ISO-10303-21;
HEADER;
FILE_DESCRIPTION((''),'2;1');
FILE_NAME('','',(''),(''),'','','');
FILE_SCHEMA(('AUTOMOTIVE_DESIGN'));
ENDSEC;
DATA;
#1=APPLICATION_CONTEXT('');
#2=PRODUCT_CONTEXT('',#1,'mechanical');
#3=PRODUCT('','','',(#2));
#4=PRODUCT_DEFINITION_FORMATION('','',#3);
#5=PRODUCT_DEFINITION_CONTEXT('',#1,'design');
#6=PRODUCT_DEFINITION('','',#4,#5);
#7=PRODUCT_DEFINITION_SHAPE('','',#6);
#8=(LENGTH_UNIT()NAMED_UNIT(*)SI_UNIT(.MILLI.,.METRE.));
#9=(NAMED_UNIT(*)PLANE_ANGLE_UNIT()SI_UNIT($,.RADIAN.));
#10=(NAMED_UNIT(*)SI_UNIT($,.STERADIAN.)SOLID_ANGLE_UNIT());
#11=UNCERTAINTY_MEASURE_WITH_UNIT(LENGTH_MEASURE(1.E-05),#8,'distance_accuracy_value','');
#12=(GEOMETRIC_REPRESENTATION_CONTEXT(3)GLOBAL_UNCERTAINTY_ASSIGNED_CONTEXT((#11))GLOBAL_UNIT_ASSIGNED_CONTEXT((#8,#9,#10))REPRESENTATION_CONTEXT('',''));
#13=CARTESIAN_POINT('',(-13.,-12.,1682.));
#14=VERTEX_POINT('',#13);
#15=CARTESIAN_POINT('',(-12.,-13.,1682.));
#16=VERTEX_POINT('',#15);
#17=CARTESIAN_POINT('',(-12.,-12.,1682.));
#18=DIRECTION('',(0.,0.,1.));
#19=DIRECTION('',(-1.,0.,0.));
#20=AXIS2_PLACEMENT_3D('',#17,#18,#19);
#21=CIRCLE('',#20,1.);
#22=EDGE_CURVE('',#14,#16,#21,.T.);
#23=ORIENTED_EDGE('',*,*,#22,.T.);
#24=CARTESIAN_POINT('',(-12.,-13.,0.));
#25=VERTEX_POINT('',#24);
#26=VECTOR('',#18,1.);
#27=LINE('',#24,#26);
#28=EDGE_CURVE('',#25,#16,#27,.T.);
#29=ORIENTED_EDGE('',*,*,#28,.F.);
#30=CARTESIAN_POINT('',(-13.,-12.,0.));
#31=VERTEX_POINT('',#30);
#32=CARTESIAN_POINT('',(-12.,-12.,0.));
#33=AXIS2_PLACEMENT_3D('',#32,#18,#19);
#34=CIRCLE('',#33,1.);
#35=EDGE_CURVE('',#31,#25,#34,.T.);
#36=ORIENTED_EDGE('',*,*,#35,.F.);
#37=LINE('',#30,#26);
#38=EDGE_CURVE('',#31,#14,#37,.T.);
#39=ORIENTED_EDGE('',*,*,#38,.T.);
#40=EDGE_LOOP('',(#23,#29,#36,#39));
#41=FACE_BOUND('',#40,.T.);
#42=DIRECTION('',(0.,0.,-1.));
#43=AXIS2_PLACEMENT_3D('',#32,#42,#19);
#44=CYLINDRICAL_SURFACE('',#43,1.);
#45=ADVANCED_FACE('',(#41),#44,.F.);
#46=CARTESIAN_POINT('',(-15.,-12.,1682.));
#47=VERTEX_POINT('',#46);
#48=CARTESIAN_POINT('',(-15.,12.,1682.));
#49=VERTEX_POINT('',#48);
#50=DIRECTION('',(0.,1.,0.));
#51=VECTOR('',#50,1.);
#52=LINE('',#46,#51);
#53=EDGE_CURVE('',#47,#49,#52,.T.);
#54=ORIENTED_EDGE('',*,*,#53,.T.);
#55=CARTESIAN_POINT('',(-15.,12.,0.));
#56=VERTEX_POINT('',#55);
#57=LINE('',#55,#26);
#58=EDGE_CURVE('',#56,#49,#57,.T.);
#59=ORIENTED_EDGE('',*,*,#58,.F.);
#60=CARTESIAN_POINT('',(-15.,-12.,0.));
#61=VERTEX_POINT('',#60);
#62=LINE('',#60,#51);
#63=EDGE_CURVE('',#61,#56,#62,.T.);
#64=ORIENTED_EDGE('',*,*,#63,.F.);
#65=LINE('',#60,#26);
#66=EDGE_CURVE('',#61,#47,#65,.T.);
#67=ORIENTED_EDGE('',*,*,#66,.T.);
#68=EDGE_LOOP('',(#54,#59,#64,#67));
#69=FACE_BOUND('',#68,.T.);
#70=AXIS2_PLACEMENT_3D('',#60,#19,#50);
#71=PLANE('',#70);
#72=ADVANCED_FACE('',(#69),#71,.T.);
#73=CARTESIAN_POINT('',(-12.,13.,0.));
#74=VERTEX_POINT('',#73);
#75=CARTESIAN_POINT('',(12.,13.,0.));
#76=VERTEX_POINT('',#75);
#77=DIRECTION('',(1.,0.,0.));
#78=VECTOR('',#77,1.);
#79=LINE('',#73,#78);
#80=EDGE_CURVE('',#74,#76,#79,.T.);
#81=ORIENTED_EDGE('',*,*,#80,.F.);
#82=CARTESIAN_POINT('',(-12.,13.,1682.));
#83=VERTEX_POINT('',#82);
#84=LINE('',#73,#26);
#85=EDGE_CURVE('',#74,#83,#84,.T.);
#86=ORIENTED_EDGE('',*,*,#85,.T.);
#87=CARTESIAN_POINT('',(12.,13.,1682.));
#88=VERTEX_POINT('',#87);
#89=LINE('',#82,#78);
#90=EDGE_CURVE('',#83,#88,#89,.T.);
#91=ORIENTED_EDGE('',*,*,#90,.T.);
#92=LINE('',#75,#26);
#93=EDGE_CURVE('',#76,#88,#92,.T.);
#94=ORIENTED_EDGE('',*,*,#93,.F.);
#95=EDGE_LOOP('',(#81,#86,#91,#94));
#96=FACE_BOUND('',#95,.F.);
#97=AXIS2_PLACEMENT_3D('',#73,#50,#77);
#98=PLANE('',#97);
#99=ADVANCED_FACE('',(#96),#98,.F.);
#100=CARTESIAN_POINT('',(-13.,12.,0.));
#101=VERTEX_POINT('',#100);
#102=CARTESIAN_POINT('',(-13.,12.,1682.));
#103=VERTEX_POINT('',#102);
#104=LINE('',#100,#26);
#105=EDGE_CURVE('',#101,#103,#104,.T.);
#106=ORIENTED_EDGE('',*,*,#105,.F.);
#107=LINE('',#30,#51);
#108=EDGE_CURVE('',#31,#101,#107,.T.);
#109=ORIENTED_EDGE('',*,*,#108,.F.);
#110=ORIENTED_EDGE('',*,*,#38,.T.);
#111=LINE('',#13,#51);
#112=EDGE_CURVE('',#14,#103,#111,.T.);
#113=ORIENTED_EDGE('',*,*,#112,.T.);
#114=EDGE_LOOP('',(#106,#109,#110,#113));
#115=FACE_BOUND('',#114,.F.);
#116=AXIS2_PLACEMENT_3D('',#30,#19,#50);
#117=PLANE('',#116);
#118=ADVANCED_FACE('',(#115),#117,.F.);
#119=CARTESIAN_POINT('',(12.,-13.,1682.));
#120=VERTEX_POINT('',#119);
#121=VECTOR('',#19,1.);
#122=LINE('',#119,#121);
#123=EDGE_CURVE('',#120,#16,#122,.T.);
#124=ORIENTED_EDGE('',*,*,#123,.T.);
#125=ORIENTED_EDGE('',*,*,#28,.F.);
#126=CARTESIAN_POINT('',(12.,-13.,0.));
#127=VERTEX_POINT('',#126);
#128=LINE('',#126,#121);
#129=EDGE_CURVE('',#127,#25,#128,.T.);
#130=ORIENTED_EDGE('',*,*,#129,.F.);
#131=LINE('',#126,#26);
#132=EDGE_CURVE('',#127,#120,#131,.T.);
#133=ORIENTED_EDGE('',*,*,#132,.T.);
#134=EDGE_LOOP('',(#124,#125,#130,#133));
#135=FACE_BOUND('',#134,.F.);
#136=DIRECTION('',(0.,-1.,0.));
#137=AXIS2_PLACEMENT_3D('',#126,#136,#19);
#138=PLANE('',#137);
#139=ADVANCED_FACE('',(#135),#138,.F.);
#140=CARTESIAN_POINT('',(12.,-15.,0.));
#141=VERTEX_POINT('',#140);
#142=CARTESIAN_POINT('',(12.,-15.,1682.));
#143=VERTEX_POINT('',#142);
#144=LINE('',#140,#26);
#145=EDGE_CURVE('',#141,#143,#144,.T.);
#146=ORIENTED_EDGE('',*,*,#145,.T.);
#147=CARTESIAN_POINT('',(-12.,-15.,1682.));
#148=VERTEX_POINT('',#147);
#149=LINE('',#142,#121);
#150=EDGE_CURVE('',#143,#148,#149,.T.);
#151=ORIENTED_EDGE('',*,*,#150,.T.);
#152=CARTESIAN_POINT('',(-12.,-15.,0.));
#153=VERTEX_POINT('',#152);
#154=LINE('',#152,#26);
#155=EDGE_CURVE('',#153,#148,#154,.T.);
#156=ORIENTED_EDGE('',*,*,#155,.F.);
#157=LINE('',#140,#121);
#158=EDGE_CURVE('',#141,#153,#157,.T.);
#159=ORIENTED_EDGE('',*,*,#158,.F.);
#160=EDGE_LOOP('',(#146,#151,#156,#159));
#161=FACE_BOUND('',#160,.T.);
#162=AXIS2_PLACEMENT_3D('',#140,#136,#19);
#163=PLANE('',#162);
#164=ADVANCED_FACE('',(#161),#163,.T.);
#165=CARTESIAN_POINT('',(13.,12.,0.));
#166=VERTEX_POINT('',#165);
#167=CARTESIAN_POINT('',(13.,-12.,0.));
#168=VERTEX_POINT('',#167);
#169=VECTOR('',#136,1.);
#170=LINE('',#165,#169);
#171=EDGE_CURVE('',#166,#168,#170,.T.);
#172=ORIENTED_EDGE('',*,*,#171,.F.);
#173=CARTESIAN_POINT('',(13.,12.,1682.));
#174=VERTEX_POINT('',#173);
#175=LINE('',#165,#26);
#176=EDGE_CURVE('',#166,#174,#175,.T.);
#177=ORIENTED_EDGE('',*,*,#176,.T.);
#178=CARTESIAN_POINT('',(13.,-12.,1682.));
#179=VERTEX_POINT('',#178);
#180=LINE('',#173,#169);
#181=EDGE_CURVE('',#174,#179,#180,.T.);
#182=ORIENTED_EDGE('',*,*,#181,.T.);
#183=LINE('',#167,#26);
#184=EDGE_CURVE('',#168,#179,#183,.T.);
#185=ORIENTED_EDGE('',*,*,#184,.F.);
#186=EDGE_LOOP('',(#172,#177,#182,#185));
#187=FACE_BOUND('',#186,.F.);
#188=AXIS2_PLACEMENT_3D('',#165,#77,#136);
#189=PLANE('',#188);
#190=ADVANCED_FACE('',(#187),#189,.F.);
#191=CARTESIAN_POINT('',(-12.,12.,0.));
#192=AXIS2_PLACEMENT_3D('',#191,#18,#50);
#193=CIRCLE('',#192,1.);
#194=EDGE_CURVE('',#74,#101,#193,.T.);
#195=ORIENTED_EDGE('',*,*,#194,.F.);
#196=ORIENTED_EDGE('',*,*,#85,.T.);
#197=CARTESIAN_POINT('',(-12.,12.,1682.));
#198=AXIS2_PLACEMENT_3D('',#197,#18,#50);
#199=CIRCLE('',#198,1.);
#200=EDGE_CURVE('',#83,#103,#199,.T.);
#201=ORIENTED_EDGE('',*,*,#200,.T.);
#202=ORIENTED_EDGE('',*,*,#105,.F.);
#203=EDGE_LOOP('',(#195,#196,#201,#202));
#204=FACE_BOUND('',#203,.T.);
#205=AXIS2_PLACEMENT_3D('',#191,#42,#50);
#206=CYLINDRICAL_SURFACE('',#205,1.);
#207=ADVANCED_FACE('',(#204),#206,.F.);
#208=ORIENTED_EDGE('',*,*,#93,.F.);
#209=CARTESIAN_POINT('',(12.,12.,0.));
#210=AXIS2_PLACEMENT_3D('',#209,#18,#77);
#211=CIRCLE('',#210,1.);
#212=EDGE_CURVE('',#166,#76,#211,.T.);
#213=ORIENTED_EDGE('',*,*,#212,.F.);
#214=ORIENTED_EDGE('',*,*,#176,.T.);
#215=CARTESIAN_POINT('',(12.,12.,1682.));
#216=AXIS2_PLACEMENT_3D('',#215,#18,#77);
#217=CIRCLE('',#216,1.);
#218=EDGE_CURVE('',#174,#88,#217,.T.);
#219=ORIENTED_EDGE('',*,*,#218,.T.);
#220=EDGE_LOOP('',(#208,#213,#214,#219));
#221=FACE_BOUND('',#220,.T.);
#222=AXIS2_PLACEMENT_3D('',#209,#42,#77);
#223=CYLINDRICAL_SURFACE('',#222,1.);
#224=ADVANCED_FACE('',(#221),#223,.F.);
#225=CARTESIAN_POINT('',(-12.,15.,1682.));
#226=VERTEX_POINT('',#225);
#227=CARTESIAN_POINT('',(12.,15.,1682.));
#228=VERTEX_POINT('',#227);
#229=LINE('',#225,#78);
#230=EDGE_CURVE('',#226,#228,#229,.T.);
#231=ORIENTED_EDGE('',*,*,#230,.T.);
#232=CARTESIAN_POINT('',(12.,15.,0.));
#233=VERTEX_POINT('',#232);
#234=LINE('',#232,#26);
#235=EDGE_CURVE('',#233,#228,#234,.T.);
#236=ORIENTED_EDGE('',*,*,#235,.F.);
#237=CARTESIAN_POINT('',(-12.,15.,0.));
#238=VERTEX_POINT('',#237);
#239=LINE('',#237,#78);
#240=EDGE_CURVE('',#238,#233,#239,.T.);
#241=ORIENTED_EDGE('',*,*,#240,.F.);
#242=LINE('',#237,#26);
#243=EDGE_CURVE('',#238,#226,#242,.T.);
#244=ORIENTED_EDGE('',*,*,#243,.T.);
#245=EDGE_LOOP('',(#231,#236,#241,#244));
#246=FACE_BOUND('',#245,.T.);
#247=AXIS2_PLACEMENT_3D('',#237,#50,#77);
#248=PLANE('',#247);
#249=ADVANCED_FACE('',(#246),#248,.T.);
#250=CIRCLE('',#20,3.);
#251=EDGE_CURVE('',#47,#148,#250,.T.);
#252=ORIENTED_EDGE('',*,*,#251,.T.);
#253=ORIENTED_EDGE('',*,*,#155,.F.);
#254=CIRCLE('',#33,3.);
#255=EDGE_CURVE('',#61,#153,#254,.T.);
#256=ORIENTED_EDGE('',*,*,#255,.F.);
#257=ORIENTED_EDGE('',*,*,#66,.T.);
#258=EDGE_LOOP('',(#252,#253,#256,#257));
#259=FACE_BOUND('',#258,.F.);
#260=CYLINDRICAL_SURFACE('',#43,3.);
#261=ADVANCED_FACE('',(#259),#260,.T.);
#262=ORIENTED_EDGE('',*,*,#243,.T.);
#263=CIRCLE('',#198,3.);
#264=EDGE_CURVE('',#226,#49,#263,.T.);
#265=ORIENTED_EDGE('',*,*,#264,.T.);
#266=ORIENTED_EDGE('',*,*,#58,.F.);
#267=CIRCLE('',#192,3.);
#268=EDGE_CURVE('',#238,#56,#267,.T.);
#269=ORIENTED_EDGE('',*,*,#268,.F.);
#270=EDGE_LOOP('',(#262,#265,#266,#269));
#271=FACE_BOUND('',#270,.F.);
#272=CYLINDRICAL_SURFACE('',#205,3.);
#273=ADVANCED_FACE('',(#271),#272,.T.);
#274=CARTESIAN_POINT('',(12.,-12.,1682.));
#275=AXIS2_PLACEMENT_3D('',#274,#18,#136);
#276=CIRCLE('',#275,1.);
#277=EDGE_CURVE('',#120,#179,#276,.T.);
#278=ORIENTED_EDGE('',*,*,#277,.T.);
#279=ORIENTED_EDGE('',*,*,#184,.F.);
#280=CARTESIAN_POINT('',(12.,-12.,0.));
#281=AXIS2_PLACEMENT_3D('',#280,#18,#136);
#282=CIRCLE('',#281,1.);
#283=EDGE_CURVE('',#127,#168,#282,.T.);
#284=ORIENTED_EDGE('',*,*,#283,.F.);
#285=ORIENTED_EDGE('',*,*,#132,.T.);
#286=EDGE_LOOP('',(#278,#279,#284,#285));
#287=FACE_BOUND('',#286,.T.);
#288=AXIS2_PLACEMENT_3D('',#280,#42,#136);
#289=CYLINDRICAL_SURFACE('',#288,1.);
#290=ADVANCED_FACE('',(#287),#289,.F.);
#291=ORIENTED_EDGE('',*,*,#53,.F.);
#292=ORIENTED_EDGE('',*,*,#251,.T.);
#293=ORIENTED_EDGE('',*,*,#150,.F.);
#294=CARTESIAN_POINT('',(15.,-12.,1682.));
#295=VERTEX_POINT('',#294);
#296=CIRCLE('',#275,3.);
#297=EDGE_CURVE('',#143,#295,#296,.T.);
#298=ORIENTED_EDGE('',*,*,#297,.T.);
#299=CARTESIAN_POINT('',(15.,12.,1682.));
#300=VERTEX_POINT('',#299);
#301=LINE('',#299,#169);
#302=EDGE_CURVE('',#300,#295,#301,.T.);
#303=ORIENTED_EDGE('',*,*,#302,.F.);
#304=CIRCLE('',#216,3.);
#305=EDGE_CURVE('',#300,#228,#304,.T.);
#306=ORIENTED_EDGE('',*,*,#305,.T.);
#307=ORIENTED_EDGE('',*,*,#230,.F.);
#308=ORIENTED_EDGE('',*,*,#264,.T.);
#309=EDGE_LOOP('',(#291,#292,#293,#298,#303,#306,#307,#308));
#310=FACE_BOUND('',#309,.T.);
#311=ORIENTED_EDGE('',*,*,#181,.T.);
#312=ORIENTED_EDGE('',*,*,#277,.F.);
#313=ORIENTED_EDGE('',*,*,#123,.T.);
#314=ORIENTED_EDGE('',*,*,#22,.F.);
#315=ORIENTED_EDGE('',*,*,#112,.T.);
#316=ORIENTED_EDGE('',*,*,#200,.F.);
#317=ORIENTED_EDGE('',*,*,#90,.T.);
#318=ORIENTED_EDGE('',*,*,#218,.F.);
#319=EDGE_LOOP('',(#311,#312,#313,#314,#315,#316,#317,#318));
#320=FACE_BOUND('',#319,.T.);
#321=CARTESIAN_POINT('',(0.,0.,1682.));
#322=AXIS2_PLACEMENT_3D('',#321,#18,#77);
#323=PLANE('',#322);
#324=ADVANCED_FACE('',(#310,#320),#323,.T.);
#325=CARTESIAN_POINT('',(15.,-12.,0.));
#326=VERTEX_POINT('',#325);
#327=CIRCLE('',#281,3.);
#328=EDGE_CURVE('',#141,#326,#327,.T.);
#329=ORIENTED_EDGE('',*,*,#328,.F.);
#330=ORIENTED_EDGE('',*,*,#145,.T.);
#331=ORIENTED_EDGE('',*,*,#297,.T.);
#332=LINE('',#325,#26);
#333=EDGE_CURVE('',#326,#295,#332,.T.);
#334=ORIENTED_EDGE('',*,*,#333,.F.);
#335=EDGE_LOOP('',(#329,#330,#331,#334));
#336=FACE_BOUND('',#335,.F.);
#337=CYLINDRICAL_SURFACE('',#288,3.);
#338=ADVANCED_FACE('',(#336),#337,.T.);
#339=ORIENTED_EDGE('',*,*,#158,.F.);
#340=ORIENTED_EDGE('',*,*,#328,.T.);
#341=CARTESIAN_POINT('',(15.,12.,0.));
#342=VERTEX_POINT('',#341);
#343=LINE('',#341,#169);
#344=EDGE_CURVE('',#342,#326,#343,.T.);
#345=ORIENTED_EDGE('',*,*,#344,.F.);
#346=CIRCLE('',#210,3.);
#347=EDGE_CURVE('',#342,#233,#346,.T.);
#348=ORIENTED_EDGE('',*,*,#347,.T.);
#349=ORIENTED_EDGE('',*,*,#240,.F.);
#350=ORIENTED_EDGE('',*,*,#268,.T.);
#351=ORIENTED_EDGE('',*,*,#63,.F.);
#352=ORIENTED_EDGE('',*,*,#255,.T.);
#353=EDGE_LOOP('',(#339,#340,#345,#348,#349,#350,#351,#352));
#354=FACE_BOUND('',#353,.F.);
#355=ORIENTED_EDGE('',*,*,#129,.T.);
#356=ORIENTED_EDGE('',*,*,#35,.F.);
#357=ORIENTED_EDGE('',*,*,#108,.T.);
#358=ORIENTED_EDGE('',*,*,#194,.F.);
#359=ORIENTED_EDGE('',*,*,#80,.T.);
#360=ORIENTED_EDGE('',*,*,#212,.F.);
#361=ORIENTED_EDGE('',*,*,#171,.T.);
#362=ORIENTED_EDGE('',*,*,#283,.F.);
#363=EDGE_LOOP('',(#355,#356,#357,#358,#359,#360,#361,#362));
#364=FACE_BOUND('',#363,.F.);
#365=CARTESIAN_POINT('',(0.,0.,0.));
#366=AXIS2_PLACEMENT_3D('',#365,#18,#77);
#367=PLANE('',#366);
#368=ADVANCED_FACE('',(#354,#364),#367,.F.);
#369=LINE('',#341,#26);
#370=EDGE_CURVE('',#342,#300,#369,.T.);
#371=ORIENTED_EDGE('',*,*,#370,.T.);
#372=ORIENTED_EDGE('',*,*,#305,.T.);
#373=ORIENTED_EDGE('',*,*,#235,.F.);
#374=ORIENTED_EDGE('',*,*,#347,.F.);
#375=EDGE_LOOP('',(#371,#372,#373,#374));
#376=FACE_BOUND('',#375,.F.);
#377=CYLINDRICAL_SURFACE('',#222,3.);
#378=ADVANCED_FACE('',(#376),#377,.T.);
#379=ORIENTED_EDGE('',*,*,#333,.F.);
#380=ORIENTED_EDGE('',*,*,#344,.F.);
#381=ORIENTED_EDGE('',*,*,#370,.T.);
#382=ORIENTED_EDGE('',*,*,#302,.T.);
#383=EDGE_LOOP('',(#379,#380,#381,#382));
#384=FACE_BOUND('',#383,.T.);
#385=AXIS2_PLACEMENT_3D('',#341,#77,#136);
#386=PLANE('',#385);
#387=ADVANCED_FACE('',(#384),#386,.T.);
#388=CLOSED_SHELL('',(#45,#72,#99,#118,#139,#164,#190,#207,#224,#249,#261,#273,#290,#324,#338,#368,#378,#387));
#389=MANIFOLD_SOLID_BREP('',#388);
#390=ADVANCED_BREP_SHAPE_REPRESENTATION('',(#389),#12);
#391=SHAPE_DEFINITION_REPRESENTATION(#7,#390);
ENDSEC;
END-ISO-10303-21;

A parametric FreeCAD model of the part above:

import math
import FreeCAD as App
import Part
import Sketcher

V = App.Vector
Q = App.Units.Quantity

doc = App.newDocument("Part")
body = doc.addObject("PartDesign::Body", "Body")

# Sketch on XY plane
sketch1 = body.newObject("Sketcher::SketchObject", "Sketch")
sketch1.AttachmentSupport = (doc.getObject("XY_Plane"), [""])
sketch1.MapMode = "FlatFace"
sketch1.addGeometry([
    Part.LineSegment(V(-15, 12, 0), V(-15, -12, 0)),  # 0
    Part.ArcOfCircle(Part.Circle(V(-12, -12, 0), V(0, 0, 1), 3), math.radians(180), math.radians(270)),  # 1
    Part.LineSegment(V(-12, -15, 0), V(12, -15, 0)),  # 2
    Part.ArcOfCircle(Part.Circle(V(12, -12, 0), V(0, 0, 1), 3), math.radians(-90), math.radians(0)),  # 3
    Part.LineSegment(V(15, -12, 0), V(15, 12, 0)),  # 4
    Part.ArcOfCircle(Part.Circle(V(12, 12, 0), V(0, 0, 1), 3), math.radians(0), math.radians(90)),  # 5
    Part.LineSegment(V(12, 15, 0), V(-12, 15, 0)),  # 6
    Part.ArcOfCircle(Part.Circle(V(-12, 12, 0), V(0, 0, 1), 3), math.radians(90), math.radians(180)),  # 7
    Part.ArcOfCircle(Part.Circle(V(-12, 12, 0), V(0, 0, 1), 1), math.radians(90), math.radians(180)),  # 8
    Part.LineSegment(V(-12, 13, 0), V(12, 13, 0)),  # 9
    Part.ArcOfCircle(Part.Circle(V(12, 12, 0), V(0, 0, 1), 1), math.radians(0), math.radians(90)),  # 10
    Part.LineSegment(V(13, 12, 0), V(13, -12, 0)),  # 11
    Part.ArcOfCircle(Part.Circle(V(12, -12, 0), V(0, 0, 1), 1), math.radians(-90), math.radians(0)),  # 12
    Part.LineSegment(V(12, -13, 0), V(-12, -13, 0)),  # 13
    Part.ArcOfCircle(Part.Circle(V(-12, -12, 0), V(0, 0, 1), 1), math.radians(180), math.radians(270)),  # 14
    Part.LineSegment(V(-13, -12, 0), V(-13, 12, 0)),  # 15
], False)
sketch1.addConstraint([
    Sketcher.Constraint("Tangent", 0, 2, 1, 1),
    Sketcher.Constraint("Tangent", 1, 2, 2, 1),
    Sketcher.Constraint("Tangent", 2, 2, 3, 1),
    Sketcher.Constraint("Tangent", 3, 2, 4, 1),
    Sketcher.Constraint("Tangent", 4, 2, 5, 1),
    Sketcher.Constraint("Tangent", 5, 2, 6, 1),
    Sketcher.Constraint("Tangent", 6, 2, 7, 1),
    Sketcher.Constraint("Tangent", 7, 2, 0, 1),
    Sketcher.Constraint("Tangent", 8, 1, 9, 1),
    Sketcher.Constraint("Tangent", 9, 2, 10, 2),
    Sketcher.Constraint("Tangent", 10, 1, 11, 1),
    Sketcher.Constraint("Tangent", 11, 2, 12, 2),
    Sketcher.Constraint("Tangent", 12, 1, 13, 1),
    Sketcher.Constraint("Tangent", 13, 2, 14, 2),
    Sketcher.Constraint("Tangent", 14, 1, 15, 1),
    Sketcher.Constraint("Tangent", 15, 2, 8, 2),
    Sketcher.Constraint("Vertical", 0),
    Sketcher.Constraint("Horizontal", 2),
    Sketcher.Constraint("Vertical", 4),
    Sketcher.Constraint("Horizontal", 6),
    Sketcher.Constraint("Horizontal", 9),
    Sketcher.Constraint("Vertical", 11),
    Sketcher.Constraint("Horizontal", 13),
    Sketcher.Constraint("Vertical", 15),
    Sketcher.Constraint("Coincident", 8, 3, 7, 3),
    Sketcher.Constraint("Coincident", 10, 3, 5, 3),
    Sketcher.Constraint("Coincident", 12, 3, 3, 3),
    Sketcher.Constraint("Equal", 1, 3),
    Sketcher.Constraint("Equal", 3, 5),
    Sketcher.Constraint("Equal", 5, 7),
    Sketcher.Constraint("Equal", 12, 14),
    Sketcher.Constraint("Symmetric", 1, 3, 5, 3, -1, 1),
    Sketcher.Constraint("Equal", 13, 0),
    Sketcher.Constraint("Radius", 1, Q("3 mm")),
    Sketcher.Constraint("Radius", 8, Q("1 mm")),
    Sketcher.Constraint("DistanceX", 0, 2, -1, 1, Q("15 mm")),
])
pad1 = body.newObject("PartDesign::Pad", "Pad")
pad1.Profile = sketch1
pad1.Length = 1682

doc.recompute()
